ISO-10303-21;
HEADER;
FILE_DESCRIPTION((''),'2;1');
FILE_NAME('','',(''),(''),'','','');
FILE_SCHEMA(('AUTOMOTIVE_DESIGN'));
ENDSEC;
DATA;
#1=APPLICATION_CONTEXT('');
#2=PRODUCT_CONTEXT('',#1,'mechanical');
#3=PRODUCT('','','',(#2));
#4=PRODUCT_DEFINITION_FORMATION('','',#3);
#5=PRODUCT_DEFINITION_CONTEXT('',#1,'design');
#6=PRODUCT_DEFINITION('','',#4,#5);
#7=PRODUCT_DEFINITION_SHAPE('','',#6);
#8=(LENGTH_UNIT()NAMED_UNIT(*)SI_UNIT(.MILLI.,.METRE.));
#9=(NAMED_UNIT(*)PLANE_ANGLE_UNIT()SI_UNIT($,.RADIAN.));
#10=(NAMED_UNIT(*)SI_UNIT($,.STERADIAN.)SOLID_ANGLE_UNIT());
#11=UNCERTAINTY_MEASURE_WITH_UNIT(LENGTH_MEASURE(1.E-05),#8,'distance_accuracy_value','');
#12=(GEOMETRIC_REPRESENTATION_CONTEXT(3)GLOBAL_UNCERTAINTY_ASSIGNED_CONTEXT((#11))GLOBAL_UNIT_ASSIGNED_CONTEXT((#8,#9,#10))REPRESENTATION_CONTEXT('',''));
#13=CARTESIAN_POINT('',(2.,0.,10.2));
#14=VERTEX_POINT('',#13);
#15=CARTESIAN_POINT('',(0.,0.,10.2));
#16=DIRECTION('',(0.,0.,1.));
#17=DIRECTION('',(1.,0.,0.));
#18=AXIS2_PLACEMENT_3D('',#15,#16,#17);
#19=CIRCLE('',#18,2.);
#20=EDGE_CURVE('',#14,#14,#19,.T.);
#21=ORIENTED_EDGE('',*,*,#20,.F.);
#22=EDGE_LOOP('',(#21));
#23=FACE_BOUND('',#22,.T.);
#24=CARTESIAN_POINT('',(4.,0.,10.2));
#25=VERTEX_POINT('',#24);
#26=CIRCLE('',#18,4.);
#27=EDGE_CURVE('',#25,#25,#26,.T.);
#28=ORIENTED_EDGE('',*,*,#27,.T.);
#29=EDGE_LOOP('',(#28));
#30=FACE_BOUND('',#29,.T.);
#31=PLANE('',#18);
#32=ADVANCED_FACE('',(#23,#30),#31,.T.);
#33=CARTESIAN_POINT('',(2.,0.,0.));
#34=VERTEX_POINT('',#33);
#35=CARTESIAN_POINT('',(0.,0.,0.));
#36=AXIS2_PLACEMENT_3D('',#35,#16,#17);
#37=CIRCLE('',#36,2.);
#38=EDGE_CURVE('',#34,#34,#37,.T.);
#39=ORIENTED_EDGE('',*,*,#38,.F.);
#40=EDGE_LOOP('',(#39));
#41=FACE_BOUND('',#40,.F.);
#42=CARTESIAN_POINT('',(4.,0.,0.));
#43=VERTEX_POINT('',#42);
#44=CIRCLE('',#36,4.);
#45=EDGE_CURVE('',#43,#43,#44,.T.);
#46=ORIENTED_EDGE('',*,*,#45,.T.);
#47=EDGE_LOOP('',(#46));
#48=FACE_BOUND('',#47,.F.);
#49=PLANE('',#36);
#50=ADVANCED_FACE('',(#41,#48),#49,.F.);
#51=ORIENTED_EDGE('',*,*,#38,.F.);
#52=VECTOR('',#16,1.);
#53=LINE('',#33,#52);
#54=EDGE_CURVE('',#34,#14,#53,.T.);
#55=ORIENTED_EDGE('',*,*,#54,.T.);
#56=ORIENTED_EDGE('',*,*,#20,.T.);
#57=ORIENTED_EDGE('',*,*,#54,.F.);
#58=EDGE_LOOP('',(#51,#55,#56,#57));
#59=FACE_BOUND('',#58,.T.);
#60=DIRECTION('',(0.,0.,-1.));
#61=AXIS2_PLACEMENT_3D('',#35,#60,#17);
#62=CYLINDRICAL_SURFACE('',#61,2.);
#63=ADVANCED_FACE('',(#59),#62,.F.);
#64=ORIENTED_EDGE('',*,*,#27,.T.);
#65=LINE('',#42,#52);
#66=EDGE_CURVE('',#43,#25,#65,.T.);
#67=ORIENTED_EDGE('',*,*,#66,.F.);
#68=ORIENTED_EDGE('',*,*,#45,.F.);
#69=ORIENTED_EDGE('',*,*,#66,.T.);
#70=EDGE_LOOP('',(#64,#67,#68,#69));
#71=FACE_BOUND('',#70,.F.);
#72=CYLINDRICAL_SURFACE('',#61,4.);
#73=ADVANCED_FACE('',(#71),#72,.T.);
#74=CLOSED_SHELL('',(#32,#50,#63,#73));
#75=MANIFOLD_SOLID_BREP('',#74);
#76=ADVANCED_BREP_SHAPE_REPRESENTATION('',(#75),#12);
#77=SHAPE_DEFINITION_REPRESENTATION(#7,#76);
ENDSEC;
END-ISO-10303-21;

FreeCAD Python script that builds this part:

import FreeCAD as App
import Part
import Sketcher
Q = App.Units.Quantity

doc = App.newDocument("Part")
params = doc.addObject("Spreadsheet::Sheet", "Params")
for row, (alias, value) in enumerate([
    ("sketch1_diameter", "8 mm"),
    ("sketch1_diameter2", "4 mm"),
    ("pad1_length", "10.2 mm"),
], start=1):
    params.set(f"A{row}", alias)
    params.set(f"B{row}", "=" + value)
    params.setAlias(f"B{row}", alias)

body = doc.addObject("PartDesign::Body", "Body")

sketch1 = doc.addObject("Sketcher::SketchObject", "Sketch")
body.addObject(sketch1)
sketch1.AttachmentSupport = (doc.XY_Plane, [""])
sketch1.MapMode = "FlatFace"
sketch1.addGeometry(Part.Circle(App.Vector(0, 0, 0), App.Vector(0, 0, 1), 4), False)
sketch1.addGeometry(Part.Circle(App.Vector(0, 0, 0), App.Vector(0, 0, 1), 2), False)
sketch1.addConstraint(Sketcher.Constraint("Coincident", 0, 3, -1, 1))
sketch1.addConstraint(Sketcher.Constraint("Coincident", 1, 3, -1, 1))
sketch1.addConstraint(Sketcher.Constraint("Diameter", 0, Q("8 mm")))
sketch1.addConstraint(Sketcher.Constraint("Diameter", 1, Q("4 mm")))
sketch1.setExpression("Constraints[2]", "Params.sketch1_diameter")
sketch1.setExpression("Constraints[3]", "Params.sketch1_diameter2")
pad1 = doc.addObject("PartDesign::Pad", "Pad")
body.addObject(pad1)
pad1.Profile = sketch1
pad1.setExpression("Length", "Params.pad1_length")

doc.recompute()
